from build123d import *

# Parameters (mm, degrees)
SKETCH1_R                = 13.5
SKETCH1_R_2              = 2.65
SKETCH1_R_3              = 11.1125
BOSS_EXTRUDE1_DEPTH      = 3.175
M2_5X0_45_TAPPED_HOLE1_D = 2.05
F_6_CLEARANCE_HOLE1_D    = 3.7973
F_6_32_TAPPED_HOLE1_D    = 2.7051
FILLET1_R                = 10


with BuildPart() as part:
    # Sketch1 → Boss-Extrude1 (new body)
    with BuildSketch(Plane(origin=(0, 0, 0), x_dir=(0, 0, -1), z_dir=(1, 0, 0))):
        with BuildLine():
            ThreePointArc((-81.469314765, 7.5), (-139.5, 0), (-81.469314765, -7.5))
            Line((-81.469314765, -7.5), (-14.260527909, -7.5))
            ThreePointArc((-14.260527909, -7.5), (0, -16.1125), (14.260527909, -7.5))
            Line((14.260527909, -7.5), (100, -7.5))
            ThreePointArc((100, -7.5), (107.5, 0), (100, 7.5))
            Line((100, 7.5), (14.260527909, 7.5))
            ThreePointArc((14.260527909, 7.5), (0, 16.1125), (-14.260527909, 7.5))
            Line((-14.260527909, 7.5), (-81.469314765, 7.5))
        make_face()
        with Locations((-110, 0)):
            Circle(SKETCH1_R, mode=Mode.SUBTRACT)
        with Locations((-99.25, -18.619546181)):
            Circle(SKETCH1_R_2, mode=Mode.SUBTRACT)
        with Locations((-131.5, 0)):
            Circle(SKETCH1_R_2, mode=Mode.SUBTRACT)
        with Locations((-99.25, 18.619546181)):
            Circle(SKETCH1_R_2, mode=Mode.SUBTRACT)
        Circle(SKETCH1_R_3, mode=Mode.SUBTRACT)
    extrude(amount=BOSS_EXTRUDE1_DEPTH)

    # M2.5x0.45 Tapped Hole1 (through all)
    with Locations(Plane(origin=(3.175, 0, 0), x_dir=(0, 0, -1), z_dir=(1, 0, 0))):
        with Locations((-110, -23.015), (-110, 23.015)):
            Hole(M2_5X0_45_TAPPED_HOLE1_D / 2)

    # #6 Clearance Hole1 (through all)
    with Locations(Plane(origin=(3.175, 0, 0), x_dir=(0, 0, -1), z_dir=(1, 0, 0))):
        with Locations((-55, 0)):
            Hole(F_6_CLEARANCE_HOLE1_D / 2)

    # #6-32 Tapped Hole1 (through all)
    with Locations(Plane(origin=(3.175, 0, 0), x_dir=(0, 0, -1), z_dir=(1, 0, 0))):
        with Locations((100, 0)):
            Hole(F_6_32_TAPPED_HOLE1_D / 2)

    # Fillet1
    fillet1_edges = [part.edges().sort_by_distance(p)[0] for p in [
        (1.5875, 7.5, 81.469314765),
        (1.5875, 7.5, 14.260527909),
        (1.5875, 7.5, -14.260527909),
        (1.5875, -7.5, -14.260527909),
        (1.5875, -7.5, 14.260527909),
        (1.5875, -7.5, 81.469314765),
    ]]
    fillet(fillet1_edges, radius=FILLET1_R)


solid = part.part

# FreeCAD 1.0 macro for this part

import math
import FreeCAD as App
import Part
import Sketcher
Q = App.Units.Quantity


def edges_at(feature, points):
    """Names of the edges that pass closest to the given points."""
    edges = feature.Shape.Edges
    near = lambda p: min(range(len(edges)), key=lambda i: edges[i].distToShape(Part.Vertex(*p))[0])
    return sorted({f"Edge{near(p) + 1}" for p in points})

doc = App.newDocument("Part")
body = doc.addObject("PartDesign::Body", "Body")

# Sketch on YZ plane
sketch1 = body.newObject("Sketcher::SketchObject", "Sketch")
sketch1.AttachmentSupport = (doc.getObject("YZ_Plane"), [""])
sketch1.MapMode = "FlatFace"
sketch1.addGeometry([
    Part.ArcOfCircle(Part.Circle(App.Vector(0, 110, 0), App.Vector(0, 0, 1), 29.5), math.radians(-75), math.radians(255)),  # 0
    Part.LineSegment(App.Vector(-7.5, 81.5, 0), App.Vector(-7.5, 14.3, 0)),  # 1
    Part.ArcOfCircle(Part.Circle(App.Vector(0, 0, 0), App.Vector(0, 0, 1), 16.1), math.radians(118), math.radians(242)),  # 2
    Part.LineSegment(App.Vector(-7.5, -14.3, 0), App.Vector(-7.5, -100, 0)),  # 3
    Part.ArcOfCircle(Part.Circle(App.Vector(0, -100, 0), App.Vector(0, 0, 1), 7.5), math.radians(180), math.radians(360)),  # 4
    Part.LineSegment(App.Vector(7.5, -100, 0), App.Vector(7.5, -14.3, 0)),  # 5
    Part.ArcOfCircle(Part.Circle(App.Vector(0, 0, 0), App.Vector(0, 0, 1), 16.1), math.radians(-62), math.radians(62)),  # 6
    Part.LineSegment(App.Vector(7.5, 14.3, 0), App.Vector(7.5, 81.5, 0)),  # 7
    Part.Circle(App.Vector(-18.6, 99.2, 0), App.Vector(0, 0, 1), 2.6),  # 8
    Part.Circle(App.Vector(0, 131.5, 0), App.Vector(0, 0, 1), 2.6),  # 9
    Part.Circle(App.Vector(0, 110, 0), App.Vector(0, 0, 1), 13.5),  # 10
    Part.Circle(App.Vector(18.6, 99.2, 0), App.Vector(0, 0, 1), 2.6),  # 11
    Part.Circle(App.Vector(0, 0, 0), App.Vector(0, 0, 1), 11.1),  # 12
], False)
sketch1.addConstraint([
    Sketcher.Constraint("Coincident", 0, 2, 1, 1),
    Sketcher.Constraint("Coincident", 1, 2, 2, 1),
    Sketcher.Constraint("Coincident", 2, 2, 3, 1),
    Sketcher.Constraint("Tangent", 3, 2, 4, 1),
    Sketcher.Constraint("Tangent", 4, 2, 5, 1),
    Sketcher.Constraint("Coincident", 5, 2, 6, 1),
    Sketcher.Constraint("Coincident", 6, 2, 7, 1),
    Sketcher.Constraint("Coincident", 7, 2, 0, 1),
    Sketcher.Constraint("Vertical", 1),
    Sketcher.Constraint("Vertical", 3),
    Sketcher.Constraint("Vertical", 5),
    Sketcher.Constraint("Vertical", 7),
    Sketcher.Constraint("Coincident", 2, 3, -1, 1),
    Sketcher.Constraint("Coincident", 6, 3, -1, 1),
    Sketcher.Constraint("Coincident", 12, 3, -1, 1),
    Sketcher.Constraint("Coincident", 10, 3, 0, 3),
    Sketcher.Constraint("Equal", 2, 6),
    Sketcher.Constraint("Equal", 8, 9),
    Sketcher.Constraint("Equal", 9, 11),
    Sketcher.Constraint("Symmetric", 8, 3, 11, 3, -2),
    Sketcher.Constraint("Symmetric", 0, 2, 7, 2, -2),
    Sketcher.Constraint("PointOnObject", 4, 3, -2),
    Sketcher.Constraint("PointOnObject", 9, 3, -2),
    Sketcher.Constraint("Vertical", 1, 2, 2, 2),
    Sketcher.Constraint("Diameter", 10, Q("27 mm")),
    Sketcher.Constraint("Diameter", 8, Q("5.3 mm")),
    Sketcher.Constraint("Radius", 0, Q("29.5 mm")),
    Sketcher.Constraint("Radius", 4, Q("7.5 mm")),
    Sketcher.Constraint("Diameter", 12, Q("22.225 mm")),
    Sketcher.Constraint("DistanceY", -1, 1, 0, 3, Q("110 mm")),
    Sketcher.Constraint("DistanceY", 4, 3, -1, 1, Q("100 mm")),
    Sketcher.Constraint("DistanceY", -1, 1, 9, 3, Q("131.5 mm")),
    Sketcher.Constraint("Radius", 2, Q("16.1125 mm")),
    Sketcher.Constraint("DistanceY", -1, 1, 8, 3, Q("99.25 mm")),
    Sketcher.Constraint("DistanceX", 8, 3, -1, 1, Q("18.619546 mm")),
])
pad1 = body.newObject("PartDesign::Pad", "Pad")
pad1.Profile = sketch1
pad1.Length = 3.175

# Sketch on YZ plane
sketch2 = body.newObject("Sketcher::SketchObject", "Sketch001")
sketch2.AttachmentSupport = (doc.getObject("YZ_Plane"), [""])
sketch2.MapMode = "FlatFace"
sketch2.AttachmentOffset = App.Placement(App.Vector(0, 0, 3.175), App.Rotation())
sketch2.addGeometry([
    Part.Circle(App.Vector(-23, 110, 0), App.Vector(0, 0, 1), 1),
    Part.Circle(App.Vector(23, 110, 0), App.Vector(0, 0, 1), 1),
], False)
sketch2.addConstraint([
    Sketcher.Constraint("Equal", 0, 1),
    Sketcher.Constraint("Symmetric", 0, 3, 1, 3, -2),
    Sketcher.Constraint("Diameter", 0, Q("2.05 mm")),
    Sketcher.Constraint("DistanceY", -1, 1, 0, 3, Q("110 mm")),
    Sketcher.Constraint("DistanceX", 0, 3, 1, 3, Q("46.03 mm")),
])
doc.recompute()
hole = body.newObject("PartDesign::Hole", "Hole")
hole.Profile = sketch2
hole.ThreadType = "None"
hole.Diameter = 2.05
hole.DepthType = "ThroughAll"

# Sketch on YZ plane
sketch3 = body.newObject("Sketcher::SketchObject", "Sketch002")
sketch3.AttachmentSupport = (doc.getObject("YZ_Plane"), [""])
sketch3.MapMode = "FlatFace"
sketch3.AttachmentOffset = App.Placement(App.Vector(0, 0, 3.175), App.Rotation())
sketch3.addGeometry(Part.Circle(App.Vector(0, 55, 0), App.Vector(0, 0, 1), 1.9), False)
sketch3.addConstraint([
    Sketcher.Constraint("PointOnObject", 0, 3, -2),
    Sketcher.Constraint("DistanceY", -1, 1, 0, 3, Q("55 mm")),
    Sketcher.Constraint("Diameter", 0, Q("3.7973 mm")),
])
doc.recompute()
hole2 = body.newObject("PartDesign::Hole", "Hole001")
hole2.Profile = sketch3
hole2.ThreadType = "None"
hole2.Diameter = 3.7973
hole2.DepthType = "ThroughAll"

# Sketch on YZ plane
sketch4 = body.newObject("Sketcher::SketchObject", "Sketch003")
sketch4.AttachmentSupport = (doc.getObject("YZ_Plane"), [""])
sketch4.MapMode = "FlatFace"
sketch4.AttachmentOffset = App.Placement(App.Vector(0, 0, 3.175), App.Rotation())
sketch4.addGeometry(Part.Circle(App.Vector(0, -100, 0), App.Vector(0, 0, 1), 1.4), False)
sketch4.addConstraint([
    Sketcher.Constraint("PointOnObject", 0, 3, -2),
    Sketcher.Constraint("DistanceY", 0, 3, -1, 1, Q("100 mm")),
    Sketcher.Constraint("Diameter", 0, Q("2.7051 mm")),
])
doc.recompute()
hole3 = body.newObject("PartDesign::Hole", "Hole002")
hole3.Profile = sketch4
hole3.ThreadType = "None"
hole3.Diameter = 2.7051
hole3.DepthType = "ThroughAll"
doc.recompute()

fillet = body.newObject("PartDesign::Fillet", "Fillet")
fillet.Base = (hole3, edges_at(hole3, [
    (1.587, 7.5, 81.469),
    (1.587, 7.5, 14.261),
    (1.587, 7.5, -14.261),
    (1.587, -7.5, -14.261),
    (1.587, -7.5, 14.261),
    (1.587, -7.5, 81.469),
]))
fillet.Radius = 10

doc.recompute()
